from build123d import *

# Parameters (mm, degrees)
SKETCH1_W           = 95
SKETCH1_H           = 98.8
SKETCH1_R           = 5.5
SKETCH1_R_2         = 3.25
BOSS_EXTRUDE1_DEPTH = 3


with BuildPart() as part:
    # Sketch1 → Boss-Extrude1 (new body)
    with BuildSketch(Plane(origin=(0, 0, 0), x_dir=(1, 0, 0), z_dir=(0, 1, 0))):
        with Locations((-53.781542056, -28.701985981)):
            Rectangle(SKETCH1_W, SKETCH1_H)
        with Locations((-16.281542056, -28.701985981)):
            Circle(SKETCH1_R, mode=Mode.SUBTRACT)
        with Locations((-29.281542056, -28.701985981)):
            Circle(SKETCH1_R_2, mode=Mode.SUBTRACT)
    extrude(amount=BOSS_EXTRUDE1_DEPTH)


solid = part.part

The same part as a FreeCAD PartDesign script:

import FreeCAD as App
import Part
import Sketcher

V = App.Vector
Q = App.Units.Quantity

doc = App.newDocument("Part")
body = doc.addObject("PartDesign::Body", "Body")

# Sketch on XZ plane
sketch1 = doc.addObject("Sketcher::SketchObject", "Sketch")
body.addObject(sketch1)
sketch1.AttachmentSupport = (doc.XZ_Plane, [""])
sketch1.MapMode = "FlatFace"
sketch1.addGeometry([
    Part.LineSegment(V(-101.3, -20.7, 0), V(-101.3, 78.1, 0)),  # 0
    Part.LineSegment(V(-101.3, 78.1, 0), V(-6.3, 78.1, 0)),  # 1
    Part.LineSegment(V(-6.3, 78.1, 0), V(-6.3, -20.7, 0)),  # 2
    Part.LineSegment(V(-6.3, -20.7, 0), V(-101.3, -20.7, 0)),  # 3
    Part.Circle(V(-29.3, 28.7, 0), V(0, 0, 1), 3.2),  # 4
    Part.Circle(V(-16.3, 28.7, 0), V(0, 0, 1), 5.5),  # 5
], False)
sketch1.addConstraint([
    Sketcher.Constraint("Coincident", 0, 2, 1, 1),
    Sketcher.Constraint("Coincident", 1, 2, 2, 1),
    Sketcher.Constraint("Coincident", 2, 2, 3, 1),
    Sketcher.Constraint("Coincident", 3, 2, 0, 1),
    Sketcher.Constraint("Vertical", 0),
    Sketcher.Constraint("Horizontal", 1),
    Sketcher.Constraint("Vertical", 2),
    Sketcher.Constraint("Horizontal", 3),
    Sketcher.Constraint("Horizontal", 4, 3, 5, 3),
    Sketcher.Constraint("Diameter", 5, Q("11 mm")),
    Sketcher.Constraint("Diameter", 4, Q("6.5 mm")),
    Sketcher.Constraint("DistanceX", 1, 1, 1, 2, Q("95 mm")),
    Sketcher.Constraint("DistanceY", 0, 1, 0, 2, Q("98.8 mm")),
    Sketcher.Constraint("DistanceX", 4, 3, 5, 3, Q("13 mm")),
    Sketcher.Constraint("DistanceX", 0, 2, 4, 3, Q("72 mm")),
    Sketcher.Constraint("DistanceY", 4, 3, 0, 2, Q("49.4 mm")),
    Sketcher.Constraint("DistanceX", 4, 3, -1, 1, Q("29.281542 mm")),
    Sketcher.Constraint("DistanceY", -1, 1, 4, 3, Q("28.701986 mm")),
])
pad1 = doc.addObject("PartDesign::Pad", "Pad")
body.addObject(pad1)
pad1.Profile = sketch1
pad1.Length = 3
pad1.Reversed = True

doc.recompute()
